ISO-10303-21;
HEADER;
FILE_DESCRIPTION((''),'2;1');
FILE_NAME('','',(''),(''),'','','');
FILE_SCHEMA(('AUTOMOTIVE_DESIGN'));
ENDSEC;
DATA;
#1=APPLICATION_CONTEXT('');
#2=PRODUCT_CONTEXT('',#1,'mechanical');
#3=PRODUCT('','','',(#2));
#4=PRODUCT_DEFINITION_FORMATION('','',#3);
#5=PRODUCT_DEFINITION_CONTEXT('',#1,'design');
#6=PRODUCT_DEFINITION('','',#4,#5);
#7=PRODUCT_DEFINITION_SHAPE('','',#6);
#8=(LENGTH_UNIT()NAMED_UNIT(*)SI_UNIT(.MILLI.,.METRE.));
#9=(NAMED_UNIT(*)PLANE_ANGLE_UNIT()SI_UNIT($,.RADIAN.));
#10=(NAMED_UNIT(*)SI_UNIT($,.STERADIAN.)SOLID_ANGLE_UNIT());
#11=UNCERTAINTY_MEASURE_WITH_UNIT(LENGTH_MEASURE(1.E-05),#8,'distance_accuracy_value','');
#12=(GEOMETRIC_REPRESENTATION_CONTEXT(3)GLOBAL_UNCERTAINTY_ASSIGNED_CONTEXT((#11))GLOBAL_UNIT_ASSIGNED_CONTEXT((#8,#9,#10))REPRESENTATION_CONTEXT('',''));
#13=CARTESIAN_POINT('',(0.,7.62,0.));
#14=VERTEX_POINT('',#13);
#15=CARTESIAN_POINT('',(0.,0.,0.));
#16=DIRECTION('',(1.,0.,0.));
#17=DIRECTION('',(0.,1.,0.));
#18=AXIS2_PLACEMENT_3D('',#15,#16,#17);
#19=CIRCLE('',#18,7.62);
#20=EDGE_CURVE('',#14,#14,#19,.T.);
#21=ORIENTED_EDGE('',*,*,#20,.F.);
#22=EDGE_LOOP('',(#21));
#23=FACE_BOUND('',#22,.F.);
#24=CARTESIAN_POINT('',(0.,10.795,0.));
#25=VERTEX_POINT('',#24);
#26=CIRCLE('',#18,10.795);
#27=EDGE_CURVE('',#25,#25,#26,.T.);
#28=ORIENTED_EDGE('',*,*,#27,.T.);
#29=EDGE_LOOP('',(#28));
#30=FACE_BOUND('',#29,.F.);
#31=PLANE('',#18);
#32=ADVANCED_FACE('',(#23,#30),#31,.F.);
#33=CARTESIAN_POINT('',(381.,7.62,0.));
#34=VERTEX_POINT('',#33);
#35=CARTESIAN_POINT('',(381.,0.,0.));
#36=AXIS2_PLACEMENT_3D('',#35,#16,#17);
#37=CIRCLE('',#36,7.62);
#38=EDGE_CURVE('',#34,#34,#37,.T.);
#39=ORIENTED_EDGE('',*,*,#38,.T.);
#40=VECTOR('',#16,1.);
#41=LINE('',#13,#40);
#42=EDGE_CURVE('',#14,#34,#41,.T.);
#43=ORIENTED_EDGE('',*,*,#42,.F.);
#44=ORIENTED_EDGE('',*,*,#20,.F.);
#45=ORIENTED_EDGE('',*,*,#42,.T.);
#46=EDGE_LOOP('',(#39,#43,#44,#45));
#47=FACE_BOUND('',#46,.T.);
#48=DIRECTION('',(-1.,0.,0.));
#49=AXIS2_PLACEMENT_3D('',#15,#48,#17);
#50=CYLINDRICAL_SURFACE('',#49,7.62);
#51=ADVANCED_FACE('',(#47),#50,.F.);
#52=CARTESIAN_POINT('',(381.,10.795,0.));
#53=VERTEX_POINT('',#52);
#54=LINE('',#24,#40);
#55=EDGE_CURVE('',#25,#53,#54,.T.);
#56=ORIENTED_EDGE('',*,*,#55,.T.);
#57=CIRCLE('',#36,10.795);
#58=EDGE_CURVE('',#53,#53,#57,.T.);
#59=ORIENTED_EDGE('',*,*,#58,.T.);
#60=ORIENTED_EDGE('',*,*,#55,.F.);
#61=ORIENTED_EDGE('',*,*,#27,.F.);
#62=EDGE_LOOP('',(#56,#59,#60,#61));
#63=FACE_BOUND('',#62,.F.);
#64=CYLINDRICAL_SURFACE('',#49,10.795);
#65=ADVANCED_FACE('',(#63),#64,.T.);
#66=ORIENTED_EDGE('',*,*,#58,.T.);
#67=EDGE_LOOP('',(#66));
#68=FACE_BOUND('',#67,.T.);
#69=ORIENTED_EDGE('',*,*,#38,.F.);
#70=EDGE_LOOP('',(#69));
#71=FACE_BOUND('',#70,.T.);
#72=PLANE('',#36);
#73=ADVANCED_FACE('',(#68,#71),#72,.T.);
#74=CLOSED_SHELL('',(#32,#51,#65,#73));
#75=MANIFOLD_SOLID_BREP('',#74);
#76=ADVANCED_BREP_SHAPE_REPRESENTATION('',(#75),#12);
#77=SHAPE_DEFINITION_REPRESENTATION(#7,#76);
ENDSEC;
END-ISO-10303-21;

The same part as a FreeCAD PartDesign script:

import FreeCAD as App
import Part
import Sketcher
Q = App.Units.Quantity


def faces_at(feature, points):
    """Names of the faces that lie closest to the given points."""
    faces = feature.Shape.Faces
    near = lambda p: min(range(len(faces)), key=lambda i: faces[i].distToShape(Part.Vertex(*p))[0])
    return sorted({f"Face{near(p) + 1}" for p in points})

doc = App.newDocument("Part")
params = doc.addObject("Spreadsheet::Sheet", "Params")
for row, (alias, value) in enumerate([
    ("sketch1_diameter", "0.85 in"),
    ("pad1_length", "15 in"),
    ("thickness_wall", "0.125 in"),
], start=1):
    params.set(f"A{row}", alias)
    params.set(f"B{row}", "=" + value)
    params.setAlias(f"B{row}", alias)

body = doc.addObject("PartDesign::Body", "Body")

sketch1 = doc.addObject("Sketcher::SketchObject", "Sketch")
body.addObject(sketch1)
sketch1.AttachmentSupport = (doc.YZ_Plane, [""])
sketch1.MapMode = "FlatFace"
sketch1.addGeometry(Part.Circle(App.Vector(0, 0, 0), App.Vector(0, 0, 1), 11), False)
sketch1.addConstraint(Sketcher.Constraint("Coincident", 0, 3, -1, 1))
sketch1.addConstraint(Sketcher.Constraint("Diameter", 0, Q("0.85 in")))
sketch1.setExpression("Constraints[1]", "Params.sketch1_diameter")
pad1 = doc.addObject("PartDesign::Pad", "Pad")
body.addObject(pad1)
pad1.Profile = sketch1
pad1.setExpression("Length", "Params.pad1_length")
doc.recompute()

thickness = doc.addObject("PartDesign::Thickness", "Thickness")
body.addObject(thickness)
thickness.Base = (pad1, faces_at(pad1, [(381, 0, 0), (0, 0, 0)]))
thickness.setExpression("Value", "Params.thickness_wall")
thickness.Reversed = True
thickness.Join = "Arc"

doc.recompute()
